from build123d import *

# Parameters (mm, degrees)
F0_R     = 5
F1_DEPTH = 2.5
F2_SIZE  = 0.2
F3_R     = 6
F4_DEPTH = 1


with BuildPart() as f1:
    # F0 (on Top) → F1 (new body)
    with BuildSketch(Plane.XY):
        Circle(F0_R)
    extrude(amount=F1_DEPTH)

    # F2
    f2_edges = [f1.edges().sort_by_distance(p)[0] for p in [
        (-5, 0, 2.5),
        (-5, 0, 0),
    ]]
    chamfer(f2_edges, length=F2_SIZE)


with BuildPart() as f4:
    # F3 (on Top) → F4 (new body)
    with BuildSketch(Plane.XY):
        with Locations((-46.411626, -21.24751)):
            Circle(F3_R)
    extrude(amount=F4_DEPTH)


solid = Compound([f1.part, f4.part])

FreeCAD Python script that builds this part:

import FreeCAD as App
import Part
import Sketcher
from FreeCAD import Vector


def edges_at(feature, points):
    """Names of the edges that pass closest to the given points."""
    edges = feature.Shape.Edges
    near = lambda p: min(range(len(edges)), key=lambda i: edges[i].distToShape(Part.Vertex(*p))[0])
    return sorted({f"Edge{near(p) + 1}" for p in points})

doc = App.newDocument("Part")
body = doc.addObject("PartDesign::Body", "Body")

# Sketch on XY plane
sketch1 = body.newObject("Sketcher::SketchObject", "Sketch")
sketch1.AttachmentSupport = (doc.getObject("XY_Plane"), [""])
sketch1.MapMode = "FlatFace"
sketch1.addGeometry(Part.Circle(Vector(0, 0, 0), Vector(0, 0, 1), 5), False)
sketch1.addConstraint(Sketcher.Constraint("Coincident", 0, 3, -1, 1))
sketch1.addConstraint(Sketcher.Constraint("Diameter", 0, 10.0))
pad1 = body.newObject("PartDesign::Pad", "Pad")
pad1.Profile = sketch1
pad1.Length = 2.5
doc.recompute()

chamfer = body.newObject("PartDesign::Chamfer", "Chamfer")
chamfer.Base = (pad1, edges_at(pad1, [(-5, 0, 2.5), (-5, 0, 0)]))
chamfer.Size = 0.2
body2 = doc.addObject("PartDesign::Body", "Body001")

# Sketch on XY plane
sketch2 = body2.newObject("Sketcher::SketchObject", "Sketch001")
sketch2.AttachmentSupport = (doc.getObject("XY_Plane001"), [""])
sketch2.MapMode = "FlatFace"
sketch2.addGeometry(Part.Circle(Vector(-46, -21, 0), Vector(0, 0, 1), 6), False)
sketch2.addConstraint(Sketcher.Constraint("Diameter", 0, 12.0))
sketch2.addConstraint(Sketcher.Constraint("DistanceY", 0, 3, -1, 1, 21.24751))
sketch2.addConstraint(Sketcher.Constraint("DistanceX", 0, 3, -1, 1, 46.411626))
pad2 = body2.newObject("PartDesign::Pad", "Pad001")
pad2.Profile = sketch2
pad2.Length = 1

doc.recompute()
